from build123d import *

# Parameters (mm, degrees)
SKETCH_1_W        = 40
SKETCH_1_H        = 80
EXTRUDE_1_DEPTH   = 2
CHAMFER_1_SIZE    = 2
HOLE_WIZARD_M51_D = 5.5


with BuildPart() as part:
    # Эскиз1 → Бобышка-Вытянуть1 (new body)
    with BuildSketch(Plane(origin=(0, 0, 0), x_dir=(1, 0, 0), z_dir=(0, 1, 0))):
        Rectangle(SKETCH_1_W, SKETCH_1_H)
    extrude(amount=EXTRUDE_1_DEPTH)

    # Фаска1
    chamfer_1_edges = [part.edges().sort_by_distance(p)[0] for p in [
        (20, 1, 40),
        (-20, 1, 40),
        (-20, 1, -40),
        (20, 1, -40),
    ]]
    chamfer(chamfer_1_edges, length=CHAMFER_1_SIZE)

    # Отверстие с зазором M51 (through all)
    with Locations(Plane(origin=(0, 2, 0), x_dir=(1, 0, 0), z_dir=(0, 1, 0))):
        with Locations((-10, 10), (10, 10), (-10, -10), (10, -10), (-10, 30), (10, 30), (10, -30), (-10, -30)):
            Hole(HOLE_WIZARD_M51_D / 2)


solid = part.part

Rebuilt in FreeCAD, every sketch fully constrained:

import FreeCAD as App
import Part
import Sketcher
from FreeCAD import Vector


def edges_at(feature, points):
    """Names of the edges that pass closest to the given points."""
    edges = feature.Shape.Edges
    near = lambda p: min(range(len(edges)), key=lambda i: edges[i].distToShape(Part.Vertex(*p))[0])
    return sorted({f"Edge{near(p) + 1}" for p in points})

doc = App.newDocument("Part")
body = doc.addObject("PartDesign::Body", "Body")

sketch1 = doc.addObject("Sketcher::SketchObject", "Sketch")
body.addObject(sketch1)
sketch1.AttachmentSupport = (doc.XZ_Plane, [""])
sketch1.MapMode = "FlatFace"
sketch1.addGeometry([
    Part.LineSegment(Vector(-20, -40, 0), Vector(-20, 40, 0)),
    Part.LineSegment(Vector(-20, 40, 0), Vector(20, 40, 0)),
    Part.LineSegment(Vector(20, 40, 0), Vector(20, -40, 0)),
    Part.LineSegment(Vector(20, -40, 0), Vector(-20, -40, 0)),
], False)
sketch1.addConstraint([
    Sketcher.Constraint("Coincident", 0, 2, 1, 1),
    Sketcher.Constraint("Coincident", 1, 2, 2, 1),
    Sketcher.Constraint("Coincident", 2, 2, 3, 1),
    Sketcher.Constraint("Coincident", 3, 2, 0, 1),
    Sketcher.Constraint("Vertical", 0),
    Sketcher.Constraint("Horizontal", 1),
    Sketcher.Constraint("Vertical", 2),
    Sketcher.Constraint("Horizontal", 3),
    Sketcher.Constraint("Symmetric", 0, 2, 2, 2, -1, 1),
    Sketcher.Constraint("DistanceX", 1, 1, 1, 2, 40.0),
    Sketcher.Constraint("DistanceY", 0, 1, 0, 2, 80.0),
])
pad1 = doc.addObject("PartDesign::Pad", "Pad")
body.addObject(pad1)
pad1.Profile = sketch1
pad1.Length = 2
pad1.Reversed = True
doc.recompute()

chamfer = doc.addObject("PartDesign::Chamfer", "Chamfer")
body.addObject(chamfer)
chamfer.Base = (pad1, edges_at(pad1, [
    (20, 1, 40),
    (-20, 1, 40),
    (-20, 1, -40),
    (20, 1, -40),
]))
chamfer.Size = 2

sketch2 = doc.addObject("Sketcher::SketchObject", "Sketch001")
body.addObject(sketch2)
sketch2.AttachmentSupport = (doc.XZ_Plane, [""])
sketch2.MapMode = "FlatFace"
sketch2.AttachmentOffset = App.Placement(Vector(0, 0, -2), App.Rotation())
sketch2.addGeometry([
    Part.Circle(Vector(-10, -10, 0), Vector(0, 0, 1), 2.8),
    Part.Circle(Vector(10, -10, 0), Vector(0, 0, 1), 2.8),
    Part.Circle(Vector(-10, 10, 0), Vector(0, 0, 1), 2.8),
    Part.Circle(Vector(10, 10, 0), Vector(0, 0, 1), 2.8),
    Part.Circle(Vector(-10, -30, 0), Vector(0, 0, 1), 2.8),
    Part.Circle(Vector(10, -30, 0), Vector(0, 0, 1), 2.8),
    Part.Circle(Vector(10, 30, 0), Vector(0, 0, 1), 2.8),
    Part.Circle(Vector(-10, 30, 0), Vector(0, 0, 1), 2.8),
], False)
sketch2.addConstraint([
    Sketcher.Constraint("Equal", 0, 1),
    Sketcher.Constraint("Equal", 1, 2),
    Sketcher.Constraint("Equal", 2, 3),
    Sketcher.Constraint("Equal", 3, 4),
    Sketcher.Constraint("Equal", 4, 5),
    Sketcher.Constraint("Equal", 5, 6),
    Sketcher.Constraint("Equal", 6, 7),
    Sketcher.Constraint("Symmetric", 1, 3, 2, 3, -1, 1),
    Sketcher.Constraint("Symmetric", 0, 3, 3, 3, -1, 1),
    Sketcher.Constraint("Symmetric", 4, 3, 6, 3, -1, 1),
    Sketcher.Constraint("Symmetric", 5, 3, 7, 3, -1, 1),
    Sketcher.Constraint("Symmetric", 0, 3, 1, 3, -2),
    Sketcher.Constraint("Symmetric", 4, 3, 5, 3, -2),
    Sketcher.Constraint("Vertical", 2, 3, 4, 3),
    Sketcher.Constraint("Diameter", 0, 5.5),
    Sketcher.Constraint("DistanceX", 0, 3, -1, 1, 10.0),
    Sketcher.Constraint("DistanceY", 0, 3, -1, 1, 10.0),
    Sketcher.Constraint("DistanceY", 4, 3, -1, 1, 30.0),
])
doc.recompute()
hole = doc.addObject("PartDesign::Hole", "Hole")
body.addObject(hole)
hole.Profile = sketch2
hole.ThreadType = "None"
hole.Diameter = 5.5
hole.DepthType = "ThroughAll"
hole.Reversed = True

doc.recompute()
